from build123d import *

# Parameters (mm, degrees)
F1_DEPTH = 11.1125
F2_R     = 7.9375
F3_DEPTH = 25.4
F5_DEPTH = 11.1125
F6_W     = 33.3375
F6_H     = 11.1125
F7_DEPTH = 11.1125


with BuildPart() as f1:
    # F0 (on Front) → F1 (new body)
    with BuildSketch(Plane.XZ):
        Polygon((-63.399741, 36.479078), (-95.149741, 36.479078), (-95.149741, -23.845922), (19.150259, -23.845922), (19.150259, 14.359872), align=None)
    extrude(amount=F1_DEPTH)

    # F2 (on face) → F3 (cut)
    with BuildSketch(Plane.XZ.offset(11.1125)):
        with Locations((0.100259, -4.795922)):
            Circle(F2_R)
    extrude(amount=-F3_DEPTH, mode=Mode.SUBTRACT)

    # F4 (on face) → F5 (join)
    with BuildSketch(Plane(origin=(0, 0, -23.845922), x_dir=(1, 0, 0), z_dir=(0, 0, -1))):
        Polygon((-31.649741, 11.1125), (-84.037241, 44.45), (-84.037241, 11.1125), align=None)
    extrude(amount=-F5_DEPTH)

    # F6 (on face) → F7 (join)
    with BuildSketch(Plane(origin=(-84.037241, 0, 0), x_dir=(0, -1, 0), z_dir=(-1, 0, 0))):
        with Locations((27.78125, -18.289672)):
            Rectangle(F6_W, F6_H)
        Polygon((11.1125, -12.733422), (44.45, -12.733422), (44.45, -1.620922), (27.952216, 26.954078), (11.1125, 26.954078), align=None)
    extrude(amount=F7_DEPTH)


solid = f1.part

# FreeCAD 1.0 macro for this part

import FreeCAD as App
import Part
import Sketcher
from FreeCAD import Vector
Q = App.Units.Quantity

doc = App.newDocument("Part")
body = doc.addObject("PartDesign::Body", "Body")

sketch1 = body.newObject("Sketcher::SketchObject", "Sketch")
sketch1.AttachmentSupport = (doc.getObject("XZ_Plane"), [""])
sketch1.MapMode = "FlatFace"
sketch1.addGeometry([
    Part.LineSegment(Vector(-63, 36, 0), Vector(-95, 36, 0)),
    Part.LineSegment(Vector(-95, 36, 0), Vector(-95, -24, 0)),
    Part.LineSegment(Vector(-95, -24, 0), Vector(19, -24, 0)),
    Part.LineSegment(Vector(19, -24, 0), Vector(19, 14, 0)),
    Part.LineSegment(Vector(19, 14, 0), Vector(-63, 36, 0)),
], False)
sketch1.addConstraint([
    Sketcher.Constraint("Coincident", 0, 2, 1, 1),
    Sketcher.Constraint("Coincident", 1, 2, 2, 1),
    Sketcher.Constraint("Coincident", 2, 2, 3, 1),
    Sketcher.Constraint("Coincident", 3, 2, 4, 1),
    Sketcher.Constraint("Coincident", 4, 2, 0, 1),
    Sketcher.Constraint("Horizontal", 0),
    Sketcher.Constraint("Vertical", 1),
    Sketcher.Constraint("Horizontal", 2),
    Sketcher.Constraint("Vertical", 3),
    Sketcher.Constraint("DistanceX", 2, 1, 2, 2, Q("4.5 in")),
    Sketcher.Constraint("Angle", 4, Q("165 deg")),
    Sketcher.Constraint("DistanceX", 0, 2, 0, 1, Q("1.25 in")),
    Sketcher.Constraint("DistanceY", 1, 2, 1, 1, Q("2.375 in")),
    Sketcher.Constraint("DistanceX", 0, 2, -1, 1, Q("95.149741 mm")),
    Sketcher.Constraint("DistanceY", -1, 1, 3, 2, Q("14.359872 mm")),
])
pad1 = body.newObject("PartDesign::Pad", "Pad")
pad1.Profile = sketch1
pad1.Length = Q("0.4375 in")

sketch2 = body.newObject("Sketcher::SketchObject", "Sketch001")
sketch2.AttachmentSupport = (doc.getObject("XZ_Plane"), [""])
sketch2.MapMode = "FlatFace"
sketch2.AttachmentOffset = App.Placement(Vector(0, 0, 0.4375 * 25.4), App.Rotation())
sketch2.addGeometry(Part.Circle(Vector(0, -5, 0), Vector(0, 0, 1), 8), False)
sketch2.addConstraint([
    Sketcher.Constraint("Diameter", 0, Q("0.625 in")),
    Sketcher.Constraint("DistanceX", -1, 1, 0, 3, Q("0.100259 mm")),
    Sketcher.Constraint("DistanceY", 0, 3, -1, 1, Q("4.795922 mm")),
])
pocket1 = body.newObject("PartDesign::Pocket", "Pocket")
pocket1.Profile = sketch2
pocket1.Length = Q("1 in")

sketch3 = body.newObject("Sketcher::SketchObject", "Sketch002")
sketch3.AttachmentSupport = (doc.getObject("XY_Plane"), [""])
sketch3.MapMode = "FlatFace"
sketch3.AttachmentOffset = App.Placement(Vector(0, 0, -23.845922), App.Rotation())
sketch3.addGeometry([
    Part.LineSegment(Vector(-32, -11, 0), Vector(-84, -44, 0)),
    Part.LineSegment(Vector(-84, -44, 0), Vector(-84, -11, 0)),
    Part.LineSegment(Vector(-84, -11, 0), Vector(-32, -11, 0)),
], False)
sketch3.addConstraint([
    Sketcher.Constraint("Coincident", 0, 2, 1, 1),
    Sketcher.Constraint("Coincident", 1, 2, 2, 1),
    Sketcher.Constraint("Coincident", 2, 2, 0, 1),
    Sketcher.Constraint("Vertical", 1),
    Sketcher.Constraint("Horizontal", 2),
    Sketcher.Constraint("DistanceX", 2, 1, 2, 2, Q("2.0625 in")),
    Sketcher.Constraint("DistanceY", 1, 1, 1, 2, Q("1.3125 in")),
    Sketcher.Constraint("DistanceY", 0, 2, -1, 1, Q("1.75 in")),
    Sketcher.Constraint("DistanceX", 0, 2, -1, 1, Q("84.037241 mm")),
])
pad2 = body.newObject("PartDesign::Pad", "Pad001")
pad2.Profile = sketch3
pad2.Length = Q("0.4375 in")

sketch4 = body.newObject("Sketcher::SketchObject", "Sketch003")
sketch4.AttachmentSupport = (doc.getObject("YZ_Plane"), [""])
sketch4.MapMode = "FlatFace"
sketch4.AttachmentOffset = App.Placement(Vector(0, 0, -84.037241), App.Rotation())
sketch4.addGeometry([
    Part.LineSegment(Vector(-11, -24, 0), Vector(-44, -24, 0)),
    Part.LineSegment(Vector(-44, -24, 0), Vector(-44, -2, 0)),
    Part.LineSegment(Vector(-44, -2, 0), Vector(-28, 27, 0)),
    Part.LineSegment(Vector(-28, 27, 0), Vector(-11, 27, 0)),
    Part.LineSegment(Vector(-11, 27, 0), Vector(-11, -24, 0)),
], False)
sketch4.addConstraint([
    Sketcher.Constraint("Coincident", 0, 2, 1, 1),
    Sketcher.Constraint("Coincident", 1, 2, 2, 1),
    Sketcher.Constraint("Coincident", 2, 2, 3, 1),
    Sketcher.Constraint("Coincident", 3, 2, 4, 1),
    Sketcher.Constraint("Coincident", 4, 2, 0, 1),
    Sketcher.Constraint("Horizontal", 0),
    Sketcher.Constraint("Vertical", 1),
    Sketcher.Constraint("Horizontal", 3),
    Sketcher.Constraint("Vertical", 4),
    Sketcher.Constraint("DistanceY", 4, 2, 4, 1, Q("2 in")),
    Sketcher.Constraint("Angle", 2, Q("60 deg")),
    Sketcher.Constraint("DistanceX", 0, 2, 0, 1, Q("1.3125 in")),
    Sketcher.Constraint("DistanceY", 1, 1, 1, 2, Q("0.875 in")),
    Sketcher.Constraint("DistanceX", 0, 2, -1, 1, Q("1.75 in")),
    Sketcher.Constraint("DistanceY", 0, 2, -1, 1, Q("23.845922 mm")),
])
pad3 = body.newObject("PartDesign::Pad", "Pad002")
pad3.Profile = sketch4
pad3.Length = Q("0.4375 in")
pad3.Reversed = True

doc.recompute()
